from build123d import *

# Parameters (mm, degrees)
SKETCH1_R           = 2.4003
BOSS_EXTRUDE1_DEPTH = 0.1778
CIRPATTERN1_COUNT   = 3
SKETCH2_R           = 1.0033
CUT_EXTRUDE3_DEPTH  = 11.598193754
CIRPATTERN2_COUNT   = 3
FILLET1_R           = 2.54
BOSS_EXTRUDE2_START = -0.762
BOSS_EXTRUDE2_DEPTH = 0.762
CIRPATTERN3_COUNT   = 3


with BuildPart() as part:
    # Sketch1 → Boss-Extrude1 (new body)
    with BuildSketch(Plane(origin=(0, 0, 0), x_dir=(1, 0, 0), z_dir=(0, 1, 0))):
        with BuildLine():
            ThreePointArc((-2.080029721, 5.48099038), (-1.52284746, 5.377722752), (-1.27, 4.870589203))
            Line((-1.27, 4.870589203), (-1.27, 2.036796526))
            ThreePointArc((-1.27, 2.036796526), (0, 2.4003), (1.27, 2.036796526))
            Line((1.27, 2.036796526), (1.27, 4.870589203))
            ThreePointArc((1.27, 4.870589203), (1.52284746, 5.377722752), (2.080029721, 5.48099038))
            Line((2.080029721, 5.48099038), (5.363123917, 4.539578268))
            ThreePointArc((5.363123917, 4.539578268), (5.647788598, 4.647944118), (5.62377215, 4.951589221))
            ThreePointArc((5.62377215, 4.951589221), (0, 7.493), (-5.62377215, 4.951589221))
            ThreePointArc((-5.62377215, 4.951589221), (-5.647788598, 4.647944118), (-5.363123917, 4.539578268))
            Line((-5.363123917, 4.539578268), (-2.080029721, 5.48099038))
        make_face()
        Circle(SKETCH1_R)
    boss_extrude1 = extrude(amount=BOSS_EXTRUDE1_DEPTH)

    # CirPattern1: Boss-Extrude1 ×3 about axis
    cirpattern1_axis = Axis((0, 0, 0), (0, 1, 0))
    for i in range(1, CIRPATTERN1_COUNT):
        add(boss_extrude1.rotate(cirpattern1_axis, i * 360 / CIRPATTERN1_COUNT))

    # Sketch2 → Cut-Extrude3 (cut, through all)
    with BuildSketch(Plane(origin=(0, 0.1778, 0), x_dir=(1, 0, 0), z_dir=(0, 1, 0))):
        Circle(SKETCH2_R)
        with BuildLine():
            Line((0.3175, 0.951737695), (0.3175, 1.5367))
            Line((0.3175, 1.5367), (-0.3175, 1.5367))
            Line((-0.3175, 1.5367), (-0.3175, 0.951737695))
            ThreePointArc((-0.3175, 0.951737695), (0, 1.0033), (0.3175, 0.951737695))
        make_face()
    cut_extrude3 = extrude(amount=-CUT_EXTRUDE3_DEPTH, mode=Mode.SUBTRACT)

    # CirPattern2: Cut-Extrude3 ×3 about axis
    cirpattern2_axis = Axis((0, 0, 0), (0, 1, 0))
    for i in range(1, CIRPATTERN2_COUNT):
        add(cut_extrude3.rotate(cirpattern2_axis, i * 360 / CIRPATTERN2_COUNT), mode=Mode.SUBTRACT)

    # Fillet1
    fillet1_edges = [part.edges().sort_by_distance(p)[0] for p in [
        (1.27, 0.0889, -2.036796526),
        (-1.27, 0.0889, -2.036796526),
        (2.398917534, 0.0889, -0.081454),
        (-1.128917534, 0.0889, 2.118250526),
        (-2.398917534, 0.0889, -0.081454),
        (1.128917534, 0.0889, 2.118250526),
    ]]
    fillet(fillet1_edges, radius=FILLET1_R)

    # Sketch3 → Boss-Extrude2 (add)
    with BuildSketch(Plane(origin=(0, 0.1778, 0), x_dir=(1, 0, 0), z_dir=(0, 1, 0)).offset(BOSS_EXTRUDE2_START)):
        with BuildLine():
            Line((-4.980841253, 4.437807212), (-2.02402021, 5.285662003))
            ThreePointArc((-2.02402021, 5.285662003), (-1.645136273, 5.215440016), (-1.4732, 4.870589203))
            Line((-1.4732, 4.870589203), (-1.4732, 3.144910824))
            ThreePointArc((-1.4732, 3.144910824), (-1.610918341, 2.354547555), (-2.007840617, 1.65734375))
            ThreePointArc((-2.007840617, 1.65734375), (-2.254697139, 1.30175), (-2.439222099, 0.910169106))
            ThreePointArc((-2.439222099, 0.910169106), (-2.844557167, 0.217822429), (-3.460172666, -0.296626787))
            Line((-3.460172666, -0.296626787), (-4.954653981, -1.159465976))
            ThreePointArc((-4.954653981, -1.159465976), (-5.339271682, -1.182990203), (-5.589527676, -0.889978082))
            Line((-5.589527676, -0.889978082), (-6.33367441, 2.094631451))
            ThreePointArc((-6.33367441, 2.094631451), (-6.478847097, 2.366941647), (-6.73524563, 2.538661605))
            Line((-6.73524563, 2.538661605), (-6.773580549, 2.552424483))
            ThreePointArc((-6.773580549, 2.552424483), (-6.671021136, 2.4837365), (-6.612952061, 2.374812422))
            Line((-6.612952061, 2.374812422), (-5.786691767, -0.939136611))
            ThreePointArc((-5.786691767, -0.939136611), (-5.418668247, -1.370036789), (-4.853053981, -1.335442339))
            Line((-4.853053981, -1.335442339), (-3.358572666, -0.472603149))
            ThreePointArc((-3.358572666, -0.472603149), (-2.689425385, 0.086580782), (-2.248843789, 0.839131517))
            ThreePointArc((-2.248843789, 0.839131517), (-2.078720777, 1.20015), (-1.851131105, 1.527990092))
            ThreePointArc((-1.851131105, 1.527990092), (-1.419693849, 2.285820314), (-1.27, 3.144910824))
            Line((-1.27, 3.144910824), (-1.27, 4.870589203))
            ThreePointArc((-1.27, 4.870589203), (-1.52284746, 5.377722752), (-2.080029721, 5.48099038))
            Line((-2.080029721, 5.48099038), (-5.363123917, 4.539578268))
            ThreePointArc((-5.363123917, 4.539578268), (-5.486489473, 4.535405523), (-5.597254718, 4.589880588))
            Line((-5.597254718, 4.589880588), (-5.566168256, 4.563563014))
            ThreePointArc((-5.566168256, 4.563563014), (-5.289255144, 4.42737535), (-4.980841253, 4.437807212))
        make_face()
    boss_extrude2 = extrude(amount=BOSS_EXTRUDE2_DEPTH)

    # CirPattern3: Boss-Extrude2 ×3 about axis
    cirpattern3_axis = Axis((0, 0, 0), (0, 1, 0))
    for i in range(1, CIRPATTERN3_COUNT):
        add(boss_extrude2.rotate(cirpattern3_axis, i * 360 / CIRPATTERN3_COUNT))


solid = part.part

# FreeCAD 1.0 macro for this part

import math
import FreeCAD as App
import Part
import Sketcher
from FreeCAD import Vector
Q = App.Units.Quantity


def edges_at(feature, points):
    """Names of the edges that pass closest to the given points."""
    edges = feature.Shape.Edges
    near = lambda p: min(range(len(edges)), key=lambda i: edges[i].distToShape(Part.Vertex(*p))[0])
    return sorted({f"Edge{near(p) + 1}" for p in points})

doc = App.newDocument("Part")
body = doc.addObject("PartDesign::Body", "Body")

sketch1 = doc.addObject("Sketcher::SketchObject", "Sketch")
body.addObject(sketch1)
sketch1.AttachmentSupport = (doc.XZ_Plane, [""])
sketch1.MapMode = "FlatFace"
sketch1.addGeometry(Part.ArcOfCircle(Part.Circle(Vector(-1.91, -4.87, 0), Vector(0, 0, 1), 0.64), math.radians(-106), math.radians(0)), False)
sketch1.addGeometry(Part.LineSegment(Vector(-1.27, -4.87, 0), Vector(-1.27, -2.04, 0)), False)
sketch1.addGeometry(Part.ArcOfCircle(Part.Circle(Vector(0, 0, 0), Vector(0, 0, 1), 2.4), math.radians(-58), math.radians(238)), False)
sketch1.addGeometry(Part.LineSegment(Vector(1.27, -2.04, 0), Vector(1.27, -4.87, 0)), False)
sketch1.addGeometry(Part.ArcOfCircle(Part.Circle(Vector(1.91, -4.87, 0), Vector(0, 0, 1), 0.64), math.radians(180), math.radians(286)), False)
sketch1.addGeometry(Part.LineSegment(Vector(2.08, -5.48, 0), Vector(5.36, -4.54, 0)), False)
sketch1.addGeometry(Part.ArcOfCircle(Part.Circle(Vector(5.43, -4.78, 0), Vector(0, 0, 1), 0.25), math.radians(-41), math.radians(106)), False)
sketch1.addGeometry(Part.ArcOfCircle(Part.Circle(Vector(0, 0, 0), Vector(0, 0, 1), 7.49), math.radians(-139), math.radians(-41)), False)
sketch1.addGeometry(Part.ArcOfCircle(Part.Circle(Vector(-5.43, -4.78, 0), Vector(0, 0, 1), 0.25), math.radians(74), math.radians(221)), False)
sketch1.addGeometry(Part.LineSegment(Vector(-5.36, -4.54, 0), Vector(-2.08, -5.48, 0)), False)
sketch1.addConstraint(Sketcher.Constraint("Tangent", 0, 2, 1, 1))
sketch1.addConstraint(Sketcher.Constraint("Coincident", 1, 2, 2, 2))
sketch1.addConstraint(Sketcher.Constraint("Coincident", 2, 1, 3, 1))
sketch1.addConstraint(Sketcher.Constraint("Tangent", 3, 2, 4, 1))
sketch1.addConstraint(Sketcher.Constraint("Tangent", 4, 2, 5, 1))
sketch1.addConstraint(Sketcher.Constraint("Tangent", 5, 2, 6, 2))
sketch1.addConstraint(Sketcher.Constraint("Tangent", 6, 1, 7, 2))
sketch1.addConstraint(Sketcher.Constraint("Tangent", 7, 1, 8, 2))
sketch1.addConstraint(Sketcher.Constraint("Tangent", 8, 1, 9, 1))
sketch1.addConstraint(Sketcher.Constraint("Tangent", 9, 2, 0, 1))
sketch1.addConstraint(Sketcher.Constraint("Vertical", 1))
sketch1.addConstraint(Sketcher.Constraint("Vertical", 3))
sketch1.addConstraint(Sketcher.Constraint("Coincident", 2, 3, -1, 1))
sketch1.addConstraint(Sketcher.Constraint("Coincident", 7, 3, -1, 1))
sketch1.addConstraint(Sketcher.Constraint("Equal", 0, 4))
sketch1.addConstraint(Sketcher.Constraint("Equal", 6, 8))
sketch1.addConstraint(Sketcher.Constraint("Symmetric", 0, 3, 4, 3, -2))
sketch1.addConstraint(Sketcher.Constraint("Horizontal", 6, 3, 8, 3))
sketch1.addConstraint(Sketcher.Constraint("Radius", 6, Q("0.01 in")))
sketch1.addConstraint(Sketcher.Constraint("Angle", 5, Q("16 deg")))
sketch1.addConstraint(Sketcher.Constraint("Radius", 0, Q("0.025 in")))
sketch1.addConstraint(Sketcher.Constraint("Radius", 7, Q("0.295 in")))
sketch1.addConstraint(Sketcher.Constraint("Radius", 2, Q("0.0945 in")))
sketch1.addConstraint(Sketcher.Constraint("DistanceX", 1, 2, 2, 1, Q("0.1 in")))
sketch1.addConstraint(Sketcher.Constraint("Distance", 5, Q("3.415401 mm")))
pad1 = doc.addObject("PartDesign::Pad", "Pad")
body.addObject(pad1)
pad1.Profile = sketch1
pad1.Length = Q("0.007 in")
pad1.Reversed = True
doc.recompute()

polarpattern = doc.addObject("PartDesign::PolarPattern", "PolarPattern")
body.addObject(polarpattern)
polarpattern.Originals = [pad1]
polarpattern.Axis = (doc.Y_Axis, [""])
polarpattern.Angle = 360
polarpattern.Occurrences = 3
body.Tip = polarpattern

sketch2 = doc.addObject("Sketcher::SketchObject", "Sketch001")
body.addObject(sketch2)
sketch2.AttachmentSupport = (doc.XZ_Plane, [""])
sketch2.MapMode = "FlatFace"
sketch2.AttachmentOffset = App.Placement(Vector(0, 0, -0.007 * 25.4), App.Rotation())
sketch2.addGeometry(Part.LineSegment(Vector(0.3, -1, 0), Vector(0.3, -1.5, 0)), False)
sketch2.addGeometry(Part.LineSegment(Vector(0.3, -1.5, 0), Vector(-0.3, -1.5, 0)), False)
sketch2.addGeometry(Part.LineSegment(Vector(-0.3, -1.5, 0), Vector(-0.3, -1, 0)), False)
sketch2.addGeometry(Part.ArcOfCircle(Part.Circle(Vector(0, 0, 0), Vector(0, 0, 1), 1), math.radians(-72), math.radians(252)), False)
sketch2.addConstraint(Sketcher.Constraint("Coincident", 0, 2, 1, 1))
sketch2.addConstraint(Sketcher.Constraint("Coincident", 1, 2, 2, 1))
sketch2.addConstraint(Sketcher.Constraint("Coincident", 2, 2, 3, 2))
sketch2.addConstraint(Sketcher.Constraint("Coincident", 3, 1, 0, 1))
sketch2.addConstraint(Sketcher.Constraint("Vertical", 0))
sketch2.addConstraint(Sketcher.Constraint("Horizontal", 1))
sketch2.addConstraint(Sketcher.Constraint("Vertical", 2))
sketch2.addConstraint(Sketcher.Constraint("Coincident", 3, 3, -1, 1))
sketch2.addConstraint(Sketcher.Constraint("Horizontal", 2, 2, 3, 1))
sketch2.addConstraint(Sketcher.Constraint("Radius", 3, Q("0.0395 in")))
sketch2.addConstraint(Sketcher.Constraint("DistanceX", 1, 2, 1, 1, Q("0.025 in")))
sketch2.addConstraint(Sketcher.Constraint("DistanceY", 0, 2, -1, 1, Q("0.0605 in")))
pocket1 = doc.addObject("PartDesign::Pocket", "Pocket")
body.addObject(pocket1)
pocket1.Profile = sketch2
pocket1.Type = "ThroughAll"
pocket1.Reversed = True
doc.recompute()

polarpattern2 = doc.addObject("PartDesign::PolarPattern", "PolarPattern001")
body.addObject(polarpattern2)
polarpattern2.Originals = [pocket1]
polarpattern2.Axis = (doc.Y_Axis, [""])
polarpattern2.Angle = 360
polarpattern2.Occurrences = 3
body.Tip = polarpattern2
doc.recompute()

fillet = doc.addObject("PartDesign::Fillet", "Fillet")
body.addObject(fillet)
fillet.Base = (polarpattern2, edges_at(polarpattern2, [
    (1.27, 0.089, -2.037),
    (-1.27, 0.089, -2.037),
    (2.399, 0.089, -0.081),
    (-1.129, 0.089, 2.118),
    (-2.399, 0.089, -0.081),
    (1.129, 0.089, 2.118),
]))
fillet.Radius = Q("0.1 in")

sketch3 = doc.addObject("Sketcher::SketchObject", "Sketch002")
body.addObject(sketch3)
sketch3.AttachmentSupport = (doc.XZ_Plane, [""])
sketch3.MapMode = "FlatFace"
sketch3.AttachmentOffset = App.Placement(Vector(0, 0, 0.023 * 25.4), App.Rotation())
sketch3.addGeometry(Part.LineSegment(Vector(-4.981, -4.438, 0), Vector(-2.024, -5.286, 0)), False)
sketch3.addGeometry(Part.ArcOfCircle(Part.Circle(Vector(-1.905, -4.871, 0), Vector(0, 0, 1), 0.432), math.radians(-106), math.radians(0)), False)
sketch3.addGeometry(Part.LineSegment(Vector(-1.473, -4.871, 0), Vector(-1.473, -3.145, 0)), False)
sketch3.addGeometry(Part.ArcOfCircle(Part.Circle(Vector(-3.81, -3.145, 0), Vector(0, 0, 1), 2.337), math.radians(0), math.radians(40)), False)
sketch3.addGeometry(Part.ArcOfCircle(Part.Circle(Vector(0, 0, 0), Vector(0, 0, 1), 2.603), math.radians(-159.54), math.radians(-140.46)), False)
sketch3.addGeometry(Part.ArcOfCircle(Part.Circle(Vector(-4.629, -1.727, 0), Vector(0, 0, 1), 2.337), math.radians(20), math.radians(60)), False)
sketch3.addGeometry(Part.LineSegment(Vector(-3.46, 0.297, 0), Vector(-4.955, 1.159, 0)), False)
sketch3.addGeometry(Part.ArcOfCircle(Part.Circle(Vector(-5.171, 0.786, 0), Vector(0, 0, 1), 0.432), math.radians(60), math.radians(166)), False)
sketch3.addGeometry(Part.LineSegment(Vector(-5.59, 0.89, 0), Vector(-6.334, -2.095, 0)), False)
sketch3.addGeometry(Part.ArcOfCircle(Part.Circle(Vector(-6.95, -1.941, 0), Vector(0, 0, 1), 0.635), math.radians(-70), math.radians(-14)), False)
sketch3.addGeometry(Part.LineSegment(Vector(-6.735, -2.539, 0), Vector(-6.774, -2.552, 0)), False)
sketch3.addGeometry(Part.ArcOfCircle(Part.Circle(Vector(-6.859, -2.313, 0), Vector(0, 0, 1), 0.254), math.radians(-70), math.radians(-14)), False)
sketch3.addGeometry(Part.LineSegment(Vector(-6.613, -2.375, 0), Vector(-5.787, 0.939, 0)), False)
sketch3.addGeometry(Part.ArcOfCircle(Part.Circle(Vector(-5.171, 0.786, 0), Vector(0, 0, 1), 0.635), math.radians(60), math.radians(166)), False)
sketch3.addGeometry(Part.LineSegment(Vector(-4.853, 1.335, 0), Vector(-3.359, 0.473, 0)), False)
sketch3.addGeometry(Part.ArcOfCircle(Part.Circle(Vector(-4.629, -1.727, 0), Vector(0, 0, 1), 2.54), math.radians(20), math.radians(60)), False)
sketch3.addGeometry(Part.ArcOfCircle(Part.Circle(Vector(0, 0, 0), Vector(0, 0, 1), 2.4), math.radians(-159.54), math.radians(-140.46)), False)
sketch3.addGeometry(Part.ArcOfCircle(Part.Circle(Vector(-3.81, -3.145, 0), Vector(0, 0, 1), 2.54), math.radians(0), math.radians(40)), False)
sketch3.addGeometry(Part.LineSegment(Vector(-1.27, -3.145, 0), Vector(-1.27, -4.871, 0)), False)
sketch3.addGeometry(Part.ArcOfCircle(Part.Circle(Vector(-1.905, -4.871, 0), Vector(0, 0, 1), 0.635), math.radians(-106), math.radians(0)), False)
sketch3.addGeometry(Part.LineSegment(Vector(-2.08, -5.481, 0), Vector(-5.363, -4.54, 0)), False)
sketch3.addGeometry(Part.ArcOfCircle(Part.Circle(Vector(-5.433, -4.784, 0), Vector(0, 0, 1), 0.254), math.radians(74), math.radians(130)), False)
sketch3.addGeometry(Part.LineSegment(Vector(-5.597, -4.59, 0), Vector(-5.566, -4.564, 0)), False)
sketch3.addGeometry(Part.ArcOfCircle(Part.Circle(Vector(-5.156, -5.048, 0), Vector(0, 0, 1), 0.635), math.radians(74), math.radians(130)), False)
sketch3.addConstraint(Sketcher.Constraint("Tangent", 0, 2, 1, 1))
sketch3.addConstraint(Sketcher.Constraint("Tangent", 1, 2, 2, 1))
sketch3.addConstraint(Sketcher.Constraint("Tangent", 2, 2, 3, 1))
sketch3.addConstraint(Sketcher.Constraint("Tangent", 3, 2, 4, 2))
sketch3.addConstraint(Sketcher.Constraint("Tangent", 4, 1, 5, 1))
sketch3.addConstraint(Sketcher.Constraint("Tangent", 5, 2, 6, 1))
sketch3.addConstraint(Sketcher.Constraint("Tangent", 6, 2, 7, 1))
sketch3.addConstraint(Sketcher.Constraint("Tangent", 7, 2, 8, 1))
sketch3.addConstraint(Sketcher.Constraint("Tangent", 8, 2, 9, 2))
sketch3.addConstraint(Sketcher.Constraint("Tangent", 9, 1, 10, 1))
sketch3.addConstraint(Sketcher.Constraint("Tangent", 10, 2, 11, 1))
sketch3.addConstraint(Sketcher.Constraint("Tangent", 11, 2, 12, 1))
sketch3.addConstraint(Sketcher.Constraint("Tangent", 12, 2, 13, 2))
sketch3.addConstraint(Sketcher.Constraint("Tangent", 13, 1, 14, 1))
sketch3.addConstraint(Sketcher.Constraint("Tangent", 14, 2, 15, 2))
sketch3.addConstraint(Sketcher.Constraint("Tangent", 15, 1, 16, 1))
sketch3.addConstraint(Sketcher.Constraint("Tangent", 16, 2, 17, 2))
sketch3.addConstraint(Sketcher.Constraint("Tangent", 17, 1, 18, 1))
sketch3.addConstraint(Sketcher.Constraint("Tangent", 18, 2, 19, 2))
sketch3.addConstraint(Sketcher.Constraint("Tangent", 19, 1, 20, 1))
sketch3.addConstraint(Sketcher.Constraint("Tangent", 20, 2, 21, 1))
sketch3.addConstraint(Sketcher.Constraint("Tangent", 21, 2, 22, 1))
sketch3.addConstraint(Sketcher.Constraint("Tangent", 22, 2, 23, 2))
sketch3.addConstraint(Sketcher.Constraint("Tangent", 23, 1, 0, 1))
sketch3.addConstraint(Sketcher.Constraint("Vertical", 2))
sketch3.addConstraint(Sketcher.Constraint("Vertical", 18))
sketch3.addConstraint(Sketcher.Constraint("Coincident", 4, 3, -1, 1))
sketch3.addConstraint(Sketcher.Constraint("Coincident", 16, 3, -1, 1))
sketch3.addConstraint(Sketcher.Constraint("Coincident", 13, 3, 7, 3))
sketch3.addConstraint(Sketcher.Constraint("Coincident", 15, 3, 5, 3))
sketch3.addConstraint(Sketcher.Constraint("Coincident", 17, 3, 3, 3))
sketch3.addConstraint(Sketcher.Constraint("Coincident", 19, 3, 1, 3))
sketch3.addConstraint(Sketcher.Constraint("Equal", 3, 5))
sketch3.addConstraint(Sketcher.Constraint("Equal", 1, 7))
sketch3.addConstraint(Sketcher.Constraint("Equal", 9, 13))
sketch3.addConstraint(Sketcher.Constraint("Equal", 13, 19))
sketch3.addConstraint(Sketcher.Constraint("Equal", 11, 21))
sketch3.addConstraint(Sketcher.Constraint("Equal", 19, 23))
sketch3.addConstraint(Sketcher.Constraint("Parallel", 8, 12))
sketch3.addConstraint(Sketcher.Constraint("Parallel", 0, 20))
sketch3.addConstraint(Sketcher.Constraint("Equal", 0, 8))
sketch3.addConstraint(Sketcher.Constraint("Equal", 12, 20))
sketch3.addConstraint(Sketcher.Constraint("Radius", 15, Q("0.1 in")))
sketch3.addConstraint(Sketcher.Constraint("Radius", 11, Q("0.01 in")))
sketch3.addConstraint(Sketcher.Constraint("Angle", 0, Q("-16 deg")))
sketch3.addConstraint(Sketcher.Constraint("Angle", 6, Q("150 deg")))
sketch3.addConstraint(Sketcher.Constraint("Angle", 8, Q("-104 deg")))
sketch3.addConstraint(Sketcher.Constraint("Radius", 1, Q("0.017 in")))
sketch3.addConstraint(Sketcher.Constraint("Radius", 3, Q("0.092 in")))
sketch3.addConstraint(Sketcher.Constraint("Radius", 4, Q("0.1025 in")))
sketch3.addConstraint(Sketcher.Constraint("DistanceX", 3, 3, -1, 1, Q("0.15 in")))
sketch3.addConstraint(Sketcher.Constraint("Distance", 12, Q("3.415401 mm")))
sketch3.addConstraint(Sketcher.Constraint("DistanceY", 2, 1, 2, 2, Q("1.725678 mm")))
sketch3.addConstraint(Sketcher.Constraint("DistanceY", 5, 3, -1, 1, Q("1.727101 mm")))
sketch3.addConstraint(Sketcher.Constraint("DistanceY", 3, 3, 9, 3, Q("1.2039 mm")))
sketch3.addConstraint(Sketcher.Constraint("DistanceX", 8, 2, 15, 3, Q("1.705102 mm")))
pad2 = doc.addObject("PartDesign::Pad", "Pad001")
body.addObject(pad2)
pad2.Profile = sketch3
pad2.Length = Q("0.03 in")
pad2.Reversed = True
doc.recompute()

polarpattern3 = doc.addObject("PartDesign::PolarPattern", "PolarPattern002")
body.addObject(polarpattern3)
polarpattern3.Originals = [pad2]
polarpattern3.Axis = (doc.Y_Axis, [""])
polarpattern3.Angle = 360
polarpattern3.Occurrences = 3
body.Tip = polarpattern3

doc.recompute()
